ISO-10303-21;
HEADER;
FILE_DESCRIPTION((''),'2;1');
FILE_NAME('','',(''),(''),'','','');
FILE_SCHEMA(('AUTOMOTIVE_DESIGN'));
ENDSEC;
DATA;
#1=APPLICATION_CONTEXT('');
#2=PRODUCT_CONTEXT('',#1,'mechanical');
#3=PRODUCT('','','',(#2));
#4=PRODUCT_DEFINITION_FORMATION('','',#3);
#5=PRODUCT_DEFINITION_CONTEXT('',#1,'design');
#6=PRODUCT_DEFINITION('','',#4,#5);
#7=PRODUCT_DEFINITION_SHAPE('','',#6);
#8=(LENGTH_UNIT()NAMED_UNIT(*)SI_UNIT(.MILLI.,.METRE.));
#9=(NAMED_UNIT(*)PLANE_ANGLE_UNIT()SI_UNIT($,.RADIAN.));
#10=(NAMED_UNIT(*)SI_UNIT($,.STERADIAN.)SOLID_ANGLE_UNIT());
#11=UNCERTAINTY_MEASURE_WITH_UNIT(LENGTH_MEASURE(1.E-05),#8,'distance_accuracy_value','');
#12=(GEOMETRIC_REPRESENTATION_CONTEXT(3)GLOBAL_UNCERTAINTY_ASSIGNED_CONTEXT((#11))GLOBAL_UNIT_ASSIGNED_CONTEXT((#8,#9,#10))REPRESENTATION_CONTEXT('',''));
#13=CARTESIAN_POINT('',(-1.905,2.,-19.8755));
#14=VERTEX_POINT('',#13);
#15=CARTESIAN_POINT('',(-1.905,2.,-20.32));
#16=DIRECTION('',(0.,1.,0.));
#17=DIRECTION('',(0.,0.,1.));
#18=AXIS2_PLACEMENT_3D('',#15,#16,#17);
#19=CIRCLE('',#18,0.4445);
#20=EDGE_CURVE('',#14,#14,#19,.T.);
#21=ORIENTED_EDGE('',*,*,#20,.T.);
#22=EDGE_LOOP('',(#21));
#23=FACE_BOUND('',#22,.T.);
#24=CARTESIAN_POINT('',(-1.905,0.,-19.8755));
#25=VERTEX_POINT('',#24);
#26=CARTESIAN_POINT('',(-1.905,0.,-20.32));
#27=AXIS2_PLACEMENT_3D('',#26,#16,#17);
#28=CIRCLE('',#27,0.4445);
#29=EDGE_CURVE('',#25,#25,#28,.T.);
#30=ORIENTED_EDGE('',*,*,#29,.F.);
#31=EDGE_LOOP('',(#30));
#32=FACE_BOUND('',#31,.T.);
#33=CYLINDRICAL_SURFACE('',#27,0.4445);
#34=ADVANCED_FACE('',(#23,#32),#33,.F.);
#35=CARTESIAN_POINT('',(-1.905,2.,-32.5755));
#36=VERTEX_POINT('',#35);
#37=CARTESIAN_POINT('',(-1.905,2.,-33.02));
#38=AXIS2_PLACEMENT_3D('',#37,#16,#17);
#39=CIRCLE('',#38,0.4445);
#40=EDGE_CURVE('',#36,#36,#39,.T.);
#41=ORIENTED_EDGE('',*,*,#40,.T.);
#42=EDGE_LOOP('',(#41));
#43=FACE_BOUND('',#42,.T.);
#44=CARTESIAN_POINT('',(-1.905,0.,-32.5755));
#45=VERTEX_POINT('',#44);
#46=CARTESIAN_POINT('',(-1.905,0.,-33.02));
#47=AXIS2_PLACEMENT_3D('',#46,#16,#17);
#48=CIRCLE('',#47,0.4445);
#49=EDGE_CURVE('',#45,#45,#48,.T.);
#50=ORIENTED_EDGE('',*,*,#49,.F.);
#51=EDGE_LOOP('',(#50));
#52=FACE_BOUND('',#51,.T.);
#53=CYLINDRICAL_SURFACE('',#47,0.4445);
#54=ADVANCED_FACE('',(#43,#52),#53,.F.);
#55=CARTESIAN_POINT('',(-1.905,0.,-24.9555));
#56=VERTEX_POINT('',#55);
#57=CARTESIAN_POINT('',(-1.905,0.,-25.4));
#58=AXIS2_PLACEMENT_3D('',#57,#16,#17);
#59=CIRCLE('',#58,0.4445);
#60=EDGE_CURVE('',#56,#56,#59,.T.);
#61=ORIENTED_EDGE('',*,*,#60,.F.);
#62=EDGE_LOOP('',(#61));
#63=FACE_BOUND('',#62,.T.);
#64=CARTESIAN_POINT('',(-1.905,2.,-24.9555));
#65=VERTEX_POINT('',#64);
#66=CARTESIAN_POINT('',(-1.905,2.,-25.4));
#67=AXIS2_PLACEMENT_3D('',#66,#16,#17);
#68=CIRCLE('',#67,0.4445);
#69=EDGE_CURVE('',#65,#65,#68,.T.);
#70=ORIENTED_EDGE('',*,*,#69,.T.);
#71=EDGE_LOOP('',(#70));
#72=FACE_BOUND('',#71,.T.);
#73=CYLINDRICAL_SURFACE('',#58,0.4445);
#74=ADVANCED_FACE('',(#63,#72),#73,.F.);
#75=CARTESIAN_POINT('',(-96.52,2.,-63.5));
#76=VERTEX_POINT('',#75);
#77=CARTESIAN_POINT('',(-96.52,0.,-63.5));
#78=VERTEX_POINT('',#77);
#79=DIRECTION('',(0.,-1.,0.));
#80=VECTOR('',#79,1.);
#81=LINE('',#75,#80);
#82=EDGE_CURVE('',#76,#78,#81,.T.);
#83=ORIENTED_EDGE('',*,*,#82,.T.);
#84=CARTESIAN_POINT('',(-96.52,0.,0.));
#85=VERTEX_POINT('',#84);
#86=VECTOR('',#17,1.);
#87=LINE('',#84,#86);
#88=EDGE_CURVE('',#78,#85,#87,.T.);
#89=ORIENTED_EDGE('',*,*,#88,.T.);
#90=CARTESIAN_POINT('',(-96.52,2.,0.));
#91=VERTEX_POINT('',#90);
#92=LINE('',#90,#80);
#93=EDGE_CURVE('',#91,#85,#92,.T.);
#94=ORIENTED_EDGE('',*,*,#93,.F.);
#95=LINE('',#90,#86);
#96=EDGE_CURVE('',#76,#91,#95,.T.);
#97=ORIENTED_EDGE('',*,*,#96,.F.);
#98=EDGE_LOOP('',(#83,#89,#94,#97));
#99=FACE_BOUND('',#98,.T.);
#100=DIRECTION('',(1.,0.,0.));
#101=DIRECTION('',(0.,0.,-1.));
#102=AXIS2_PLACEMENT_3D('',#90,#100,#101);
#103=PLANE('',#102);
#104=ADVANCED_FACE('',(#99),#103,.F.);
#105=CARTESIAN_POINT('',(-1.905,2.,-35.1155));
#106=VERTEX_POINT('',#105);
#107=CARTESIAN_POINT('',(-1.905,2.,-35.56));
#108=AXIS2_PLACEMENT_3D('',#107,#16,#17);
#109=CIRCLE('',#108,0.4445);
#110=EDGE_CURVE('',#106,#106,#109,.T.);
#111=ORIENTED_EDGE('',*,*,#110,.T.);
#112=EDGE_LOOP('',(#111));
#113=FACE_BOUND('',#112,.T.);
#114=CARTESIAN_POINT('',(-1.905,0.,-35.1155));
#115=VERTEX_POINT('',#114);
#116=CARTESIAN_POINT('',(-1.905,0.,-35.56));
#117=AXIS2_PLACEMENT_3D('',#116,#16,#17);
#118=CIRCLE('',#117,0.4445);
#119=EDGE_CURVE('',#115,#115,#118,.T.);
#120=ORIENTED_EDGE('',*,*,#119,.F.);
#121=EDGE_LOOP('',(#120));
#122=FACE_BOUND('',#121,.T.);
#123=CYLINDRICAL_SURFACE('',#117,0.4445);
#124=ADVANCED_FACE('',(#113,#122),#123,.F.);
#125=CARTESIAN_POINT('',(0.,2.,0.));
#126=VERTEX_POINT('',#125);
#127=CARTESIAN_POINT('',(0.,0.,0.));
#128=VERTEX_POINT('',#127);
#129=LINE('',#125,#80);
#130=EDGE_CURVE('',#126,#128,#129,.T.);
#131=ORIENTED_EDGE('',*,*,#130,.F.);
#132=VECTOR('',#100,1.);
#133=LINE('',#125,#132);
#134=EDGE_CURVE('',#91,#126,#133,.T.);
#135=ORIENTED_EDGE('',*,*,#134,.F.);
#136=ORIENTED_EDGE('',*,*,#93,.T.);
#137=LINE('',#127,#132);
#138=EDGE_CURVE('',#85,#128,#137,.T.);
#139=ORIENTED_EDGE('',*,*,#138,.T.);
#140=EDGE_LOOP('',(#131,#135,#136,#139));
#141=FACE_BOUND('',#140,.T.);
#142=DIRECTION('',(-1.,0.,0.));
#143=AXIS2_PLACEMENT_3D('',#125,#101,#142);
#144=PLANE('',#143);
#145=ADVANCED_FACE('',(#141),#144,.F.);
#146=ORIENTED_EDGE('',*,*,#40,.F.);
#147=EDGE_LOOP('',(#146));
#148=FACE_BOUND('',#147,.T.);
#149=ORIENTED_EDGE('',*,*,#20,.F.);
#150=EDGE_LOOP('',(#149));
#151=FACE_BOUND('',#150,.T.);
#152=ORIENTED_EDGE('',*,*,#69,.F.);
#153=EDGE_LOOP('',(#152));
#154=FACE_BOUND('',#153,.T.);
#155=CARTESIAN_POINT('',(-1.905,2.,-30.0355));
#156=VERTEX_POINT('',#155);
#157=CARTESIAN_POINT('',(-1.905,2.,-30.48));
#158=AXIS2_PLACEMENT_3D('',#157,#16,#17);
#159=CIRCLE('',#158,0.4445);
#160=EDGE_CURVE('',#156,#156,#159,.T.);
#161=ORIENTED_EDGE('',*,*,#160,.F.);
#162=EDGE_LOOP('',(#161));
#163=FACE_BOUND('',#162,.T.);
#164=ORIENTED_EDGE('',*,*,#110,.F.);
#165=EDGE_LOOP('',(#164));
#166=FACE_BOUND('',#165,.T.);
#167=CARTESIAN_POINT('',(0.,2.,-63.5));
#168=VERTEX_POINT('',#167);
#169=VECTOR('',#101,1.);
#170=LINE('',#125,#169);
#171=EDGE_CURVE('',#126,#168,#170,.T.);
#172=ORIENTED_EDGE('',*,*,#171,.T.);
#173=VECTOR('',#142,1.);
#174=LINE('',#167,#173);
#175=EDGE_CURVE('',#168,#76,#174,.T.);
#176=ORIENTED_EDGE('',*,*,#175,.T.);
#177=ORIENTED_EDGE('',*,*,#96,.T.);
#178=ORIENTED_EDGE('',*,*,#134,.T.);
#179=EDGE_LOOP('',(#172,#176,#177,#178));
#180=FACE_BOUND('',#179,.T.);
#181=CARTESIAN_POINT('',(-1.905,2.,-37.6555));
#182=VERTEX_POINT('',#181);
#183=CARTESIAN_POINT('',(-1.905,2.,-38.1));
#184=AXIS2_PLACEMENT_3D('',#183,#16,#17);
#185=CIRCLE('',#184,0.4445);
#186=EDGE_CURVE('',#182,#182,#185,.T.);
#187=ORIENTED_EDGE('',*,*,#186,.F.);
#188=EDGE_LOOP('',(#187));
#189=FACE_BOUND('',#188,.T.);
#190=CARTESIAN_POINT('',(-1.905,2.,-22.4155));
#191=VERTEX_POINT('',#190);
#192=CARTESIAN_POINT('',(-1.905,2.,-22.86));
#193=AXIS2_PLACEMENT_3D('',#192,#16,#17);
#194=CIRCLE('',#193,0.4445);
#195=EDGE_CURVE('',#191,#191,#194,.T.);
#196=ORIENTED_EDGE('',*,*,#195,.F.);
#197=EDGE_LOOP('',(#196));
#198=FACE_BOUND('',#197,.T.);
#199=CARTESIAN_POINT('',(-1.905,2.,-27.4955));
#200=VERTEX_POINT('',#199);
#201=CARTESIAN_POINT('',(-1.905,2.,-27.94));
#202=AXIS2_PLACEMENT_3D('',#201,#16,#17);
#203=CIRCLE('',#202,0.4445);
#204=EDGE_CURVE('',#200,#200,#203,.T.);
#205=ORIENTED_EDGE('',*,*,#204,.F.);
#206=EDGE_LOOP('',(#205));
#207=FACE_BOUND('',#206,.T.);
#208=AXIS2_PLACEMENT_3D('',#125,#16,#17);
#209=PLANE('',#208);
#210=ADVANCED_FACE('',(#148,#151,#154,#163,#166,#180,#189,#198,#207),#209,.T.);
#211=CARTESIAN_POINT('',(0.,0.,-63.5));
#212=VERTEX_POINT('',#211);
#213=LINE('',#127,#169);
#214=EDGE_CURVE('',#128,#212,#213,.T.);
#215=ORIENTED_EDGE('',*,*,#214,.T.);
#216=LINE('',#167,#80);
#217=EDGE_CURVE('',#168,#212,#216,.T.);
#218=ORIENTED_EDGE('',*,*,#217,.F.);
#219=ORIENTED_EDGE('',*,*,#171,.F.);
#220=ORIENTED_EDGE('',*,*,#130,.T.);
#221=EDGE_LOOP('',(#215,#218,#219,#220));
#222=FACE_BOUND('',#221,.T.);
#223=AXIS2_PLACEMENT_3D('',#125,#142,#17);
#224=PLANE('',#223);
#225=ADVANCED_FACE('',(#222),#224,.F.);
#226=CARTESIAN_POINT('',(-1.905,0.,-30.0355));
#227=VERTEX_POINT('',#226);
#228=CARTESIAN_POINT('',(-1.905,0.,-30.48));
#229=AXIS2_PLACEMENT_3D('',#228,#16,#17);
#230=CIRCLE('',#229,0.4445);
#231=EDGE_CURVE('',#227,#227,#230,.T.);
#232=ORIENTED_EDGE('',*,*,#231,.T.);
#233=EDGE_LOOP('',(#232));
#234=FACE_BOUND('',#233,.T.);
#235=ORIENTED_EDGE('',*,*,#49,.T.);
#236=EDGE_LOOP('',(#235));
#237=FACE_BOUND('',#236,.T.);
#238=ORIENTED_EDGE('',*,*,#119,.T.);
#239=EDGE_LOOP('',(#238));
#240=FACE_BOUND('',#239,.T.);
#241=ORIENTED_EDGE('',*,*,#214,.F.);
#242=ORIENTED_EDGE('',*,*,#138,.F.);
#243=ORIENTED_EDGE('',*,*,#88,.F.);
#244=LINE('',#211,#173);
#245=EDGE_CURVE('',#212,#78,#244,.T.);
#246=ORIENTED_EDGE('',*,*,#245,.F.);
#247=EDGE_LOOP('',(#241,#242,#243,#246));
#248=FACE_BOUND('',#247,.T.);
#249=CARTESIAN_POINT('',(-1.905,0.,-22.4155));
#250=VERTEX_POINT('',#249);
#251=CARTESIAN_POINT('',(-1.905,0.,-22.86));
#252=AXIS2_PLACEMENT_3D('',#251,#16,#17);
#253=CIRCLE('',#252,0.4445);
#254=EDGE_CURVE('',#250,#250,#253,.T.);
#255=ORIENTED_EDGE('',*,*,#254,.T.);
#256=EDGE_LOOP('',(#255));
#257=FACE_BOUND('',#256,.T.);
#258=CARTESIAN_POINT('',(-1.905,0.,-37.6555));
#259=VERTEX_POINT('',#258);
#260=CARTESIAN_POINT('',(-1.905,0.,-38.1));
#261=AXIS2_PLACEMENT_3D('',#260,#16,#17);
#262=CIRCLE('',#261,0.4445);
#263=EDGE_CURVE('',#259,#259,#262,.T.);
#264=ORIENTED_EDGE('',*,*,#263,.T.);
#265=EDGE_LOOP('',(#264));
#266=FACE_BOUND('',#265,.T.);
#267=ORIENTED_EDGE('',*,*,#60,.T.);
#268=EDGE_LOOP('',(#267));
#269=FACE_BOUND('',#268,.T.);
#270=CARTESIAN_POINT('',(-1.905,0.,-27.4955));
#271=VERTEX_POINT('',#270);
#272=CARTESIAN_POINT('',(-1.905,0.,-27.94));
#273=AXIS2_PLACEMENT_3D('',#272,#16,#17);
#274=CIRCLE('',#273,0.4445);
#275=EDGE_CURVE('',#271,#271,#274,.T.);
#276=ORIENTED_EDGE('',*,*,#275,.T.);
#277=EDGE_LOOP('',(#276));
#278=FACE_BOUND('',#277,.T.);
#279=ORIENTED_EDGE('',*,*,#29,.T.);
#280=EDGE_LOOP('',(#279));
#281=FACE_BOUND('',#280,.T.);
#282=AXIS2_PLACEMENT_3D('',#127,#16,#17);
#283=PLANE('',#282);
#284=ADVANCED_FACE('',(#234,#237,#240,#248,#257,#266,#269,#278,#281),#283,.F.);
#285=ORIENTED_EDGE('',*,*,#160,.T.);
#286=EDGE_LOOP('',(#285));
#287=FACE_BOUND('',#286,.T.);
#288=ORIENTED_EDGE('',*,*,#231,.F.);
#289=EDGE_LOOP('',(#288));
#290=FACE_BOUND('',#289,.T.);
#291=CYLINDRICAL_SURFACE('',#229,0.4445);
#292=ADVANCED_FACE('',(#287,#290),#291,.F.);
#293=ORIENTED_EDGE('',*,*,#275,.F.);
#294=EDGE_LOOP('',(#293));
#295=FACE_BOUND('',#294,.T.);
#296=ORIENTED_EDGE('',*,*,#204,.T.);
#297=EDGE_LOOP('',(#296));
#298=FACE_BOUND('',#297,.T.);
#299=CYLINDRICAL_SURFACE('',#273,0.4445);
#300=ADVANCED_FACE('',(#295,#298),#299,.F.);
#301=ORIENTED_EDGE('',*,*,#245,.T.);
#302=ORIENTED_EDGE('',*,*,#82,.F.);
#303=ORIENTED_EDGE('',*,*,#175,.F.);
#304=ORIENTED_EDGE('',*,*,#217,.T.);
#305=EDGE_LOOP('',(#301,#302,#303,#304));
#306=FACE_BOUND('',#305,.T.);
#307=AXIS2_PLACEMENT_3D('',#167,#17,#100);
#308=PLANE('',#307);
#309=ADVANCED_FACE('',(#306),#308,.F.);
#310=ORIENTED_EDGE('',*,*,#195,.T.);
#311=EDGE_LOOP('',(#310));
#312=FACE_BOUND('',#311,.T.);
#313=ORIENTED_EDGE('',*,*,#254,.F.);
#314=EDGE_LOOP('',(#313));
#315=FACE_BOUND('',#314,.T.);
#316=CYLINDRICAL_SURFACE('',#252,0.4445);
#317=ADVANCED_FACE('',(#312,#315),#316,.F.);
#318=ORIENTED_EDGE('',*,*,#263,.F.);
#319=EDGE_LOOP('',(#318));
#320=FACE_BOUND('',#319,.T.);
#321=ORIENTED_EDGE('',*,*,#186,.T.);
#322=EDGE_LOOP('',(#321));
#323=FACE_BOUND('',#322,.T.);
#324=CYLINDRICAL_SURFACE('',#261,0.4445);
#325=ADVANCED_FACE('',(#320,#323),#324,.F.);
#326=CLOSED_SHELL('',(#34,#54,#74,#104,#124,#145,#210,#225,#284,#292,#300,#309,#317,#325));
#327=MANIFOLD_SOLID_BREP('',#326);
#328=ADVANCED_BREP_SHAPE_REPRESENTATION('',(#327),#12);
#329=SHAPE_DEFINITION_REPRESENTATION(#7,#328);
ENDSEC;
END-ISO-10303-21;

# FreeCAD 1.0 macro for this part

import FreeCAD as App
import Part
import Sketcher

V = App.Vector
Q = App.Units.Quantity


def add_polygon(sketch, points):
    """Adds a closed chain of lines whose ends are joined by coincident constraints."""
    first, n = sketch.GeometryCount, len(points)
    for a, b in zip(points, points[1:] + points[:1]):
        sketch.addGeometry(Part.LineSegment(App.Vector(*a, 0), App.Vector(*b, 0)), False)
    for i in range(n):
        sketch.addConstraint(Sketcher.Constraint("Coincident", first + i, 2, first + (i + 1) % n, 1))

doc = App.newDocument("Part")
params = doc.addObject("Spreadsheet::Sheet", "Params")
for row, (alias, value) in enumerate([
    ("sketch1_width", "3.8 in"),
    ("sketch1_height", "2.5 in"),
    ("pad1_length", "2 mm"),
    ("sketch2_diameter", "0.035 in"),
], start=1):
    params.set(f"A{row}", alias)
    params.set(f"B{row}", "=" + value)
    params.setAlias(f"B{row}", alias)

body = doc.addObject("PartDesign::Body", "Body")

# Sketch on XZ plane
sketch1 = body.newObject("Sketcher::SketchObject", "Sketch")
sketch1.AttachmentSupport = (doc.getObject("XZ_Plane"), [""])
sketch1.MapMode = "FlatFace"
add_polygon(sketch1, [(-97, -64), (-97, 0), (0, 0), (0, -64)])  # lines 0-3
sketch1.addConstraint(Sketcher.Constraint("Vertical", 0))
sketch1.addConstraint(Sketcher.Constraint("Horizontal", 1))
sketch1.addConstraint(Sketcher.Constraint("Vertical", 2))
sketch1.addConstraint(Sketcher.Constraint("Horizontal", 3))
sketch1.addConstraint(Sketcher.Constraint("Coincident", 1, 2, -1, 1))
sketch1.addConstraint(Sketcher.Constraint("DistanceX", 1, 1, 1, 2, Q("3.8 in")))
sketch1.addConstraint(Sketcher.Constraint("DistanceY", 0, 1, 0, 2, Q("2.5 in")))
sketch1.setExpression("Constraints[9]", "Params.sketch1_width")
sketch1.setExpression("Constraints[10]", "Params.sketch1_height")
pad1 = body.newObject("PartDesign::Pad", "Pad")
pad1.Profile = sketch1
pad1.setExpression("Length", "Params.pad1_length")
pad1.Reversed = True

# Sketch on XZ plane
sketch2 = body.newObject("Sketcher::SketchObject", "Sketch001")
sketch2.AttachmentSupport = (doc.getObject("XZ_Plane"), [""])
sketch2.MapMode = "FlatFace"
sketch2.AttachmentOffset = App.Placement(V(0, 0, -2), App.Rotation())
sketch2.addGeometry(Part.Circle(V(-1.91, -38.1, 0), V(0, 0, 1), 0.44), False)
sketch2.addGeometry(Part.Circle(V(-1.91, -35.56, 0), V(0, 0, 1), 0.44), False)
sketch2.addGeometry(Part.Circle(V(-1.91, -33.02, 0), V(0, 0, 1), 0.44), False)
sketch2.addGeometry(Part.Circle(V(-1.91, -30.48, 0), V(0, 0, 1), 0.44), False)
sketch2.addGeometry(Part.Circle(V(-1.91, -27.94, 0), V(0, 0, 1), 0.44), False)
sketch2.addGeometry(Part.Circle(V(-1.91, -25.4, 0), V(0, 0, 1), 0.44), False)
sketch2.addGeometry(Part.Circle(V(-1.91, -22.86, 0), V(0, 0, 1), 0.44), False)
sketch2.addGeometry(Part.Circle(V(-1.91, -20.32, 0), V(0, 0, 1), 0.44), False)
sketch2.addConstraint(Sketcher.Constraint("Equal", 0, 1))
sketch2.addConstraint(Sketcher.Constraint("Equal", 1, 2))
sketch2.addConstraint(Sketcher.Constraint("Equal", 2, 3))
sketch2.addConstraint(Sketcher.Constraint("Equal", 3, 4))
sketch2.addConstraint(Sketcher.Constraint("Equal", 4, 5))
sketch2.addConstraint(Sketcher.Constraint("Equal", 5, 6))
sketch2.addConstraint(Sketcher.Constraint("Equal", 6, 7))
sketch2.addConstraint(Sketcher.Constraint("Vertical", 0, 3, 1, 3))
sketch2.addConstraint(Sketcher.Constraint("Vertical", 1, 3, 2, 3))
sketch2.addConstraint(Sketcher.Constraint("Vertical", 2, 3, 3, 3))
sketch2.addConstraint(Sketcher.Constraint("Vertical", 3, 3, 4, 3))
sketch2.addConstraint(Sketcher.Constraint("Vertical", 4, 3, 5, 3))
sketch2.addConstraint(Sketcher.Constraint("Vertical", 5, 3, 6, 3))
sketch2.addConstraint(Sketcher.Constraint("Vertical", 6, 3, 7, 3))
sketch2.addConstraint(Sketcher.Constraint("Diameter", 0, Q("0.035 in")))
sketch2.addConstraint(Sketcher.Constraint("DistanceY", 5, 3, -1, 1, Q("1 in")))
sketch2.addConstraint(Sketcher.Constraint("DistanceY", 0, 3, -1, 1, Q("1.5 in")))
sketch2.addConstraint(Sketcher.Constraint("DistanceY", 1, 3, -1, 1, Q("1.4 in")))
sketch2.addConstraint(Sketcher.Constraint("DistanceY", 2, 3, -1, 1, Q("1.3 in")))
sketch2.addConstraint(Sketcher.Constraint("DistanceY", 3, 3, -1, 1, Q("1.2 in")))
sketch2.addConstraint(Sketcher.Constraint("DistanceY", 4, 3, -1, 1, Q("1.1 in")))
sketch2.addConstraint(Sketcher.Constraint("DistanceY", 6, 3, -1, 1, Q("0.9 in")))
sketch2.addConstraint(Sketcher.Constraint("DistanceY", 7, 3, -1, 1, Q("0.8 in")))
sketch2.addConstraint(Sketcher.Constraint("DistanceX", 0, 3, -1, 1, Q("0.075 in")))
sketch2.setExpression("Constraints[14]", "Params.sketch2_diameter")
pocket1 = body.newObject("PartDesign::Pocket", "Pocket")
pocket1.Profile = sketch2
pocket1.Type = "ThroughAll"
pocket1.Reversed = True

doc.recompute()
